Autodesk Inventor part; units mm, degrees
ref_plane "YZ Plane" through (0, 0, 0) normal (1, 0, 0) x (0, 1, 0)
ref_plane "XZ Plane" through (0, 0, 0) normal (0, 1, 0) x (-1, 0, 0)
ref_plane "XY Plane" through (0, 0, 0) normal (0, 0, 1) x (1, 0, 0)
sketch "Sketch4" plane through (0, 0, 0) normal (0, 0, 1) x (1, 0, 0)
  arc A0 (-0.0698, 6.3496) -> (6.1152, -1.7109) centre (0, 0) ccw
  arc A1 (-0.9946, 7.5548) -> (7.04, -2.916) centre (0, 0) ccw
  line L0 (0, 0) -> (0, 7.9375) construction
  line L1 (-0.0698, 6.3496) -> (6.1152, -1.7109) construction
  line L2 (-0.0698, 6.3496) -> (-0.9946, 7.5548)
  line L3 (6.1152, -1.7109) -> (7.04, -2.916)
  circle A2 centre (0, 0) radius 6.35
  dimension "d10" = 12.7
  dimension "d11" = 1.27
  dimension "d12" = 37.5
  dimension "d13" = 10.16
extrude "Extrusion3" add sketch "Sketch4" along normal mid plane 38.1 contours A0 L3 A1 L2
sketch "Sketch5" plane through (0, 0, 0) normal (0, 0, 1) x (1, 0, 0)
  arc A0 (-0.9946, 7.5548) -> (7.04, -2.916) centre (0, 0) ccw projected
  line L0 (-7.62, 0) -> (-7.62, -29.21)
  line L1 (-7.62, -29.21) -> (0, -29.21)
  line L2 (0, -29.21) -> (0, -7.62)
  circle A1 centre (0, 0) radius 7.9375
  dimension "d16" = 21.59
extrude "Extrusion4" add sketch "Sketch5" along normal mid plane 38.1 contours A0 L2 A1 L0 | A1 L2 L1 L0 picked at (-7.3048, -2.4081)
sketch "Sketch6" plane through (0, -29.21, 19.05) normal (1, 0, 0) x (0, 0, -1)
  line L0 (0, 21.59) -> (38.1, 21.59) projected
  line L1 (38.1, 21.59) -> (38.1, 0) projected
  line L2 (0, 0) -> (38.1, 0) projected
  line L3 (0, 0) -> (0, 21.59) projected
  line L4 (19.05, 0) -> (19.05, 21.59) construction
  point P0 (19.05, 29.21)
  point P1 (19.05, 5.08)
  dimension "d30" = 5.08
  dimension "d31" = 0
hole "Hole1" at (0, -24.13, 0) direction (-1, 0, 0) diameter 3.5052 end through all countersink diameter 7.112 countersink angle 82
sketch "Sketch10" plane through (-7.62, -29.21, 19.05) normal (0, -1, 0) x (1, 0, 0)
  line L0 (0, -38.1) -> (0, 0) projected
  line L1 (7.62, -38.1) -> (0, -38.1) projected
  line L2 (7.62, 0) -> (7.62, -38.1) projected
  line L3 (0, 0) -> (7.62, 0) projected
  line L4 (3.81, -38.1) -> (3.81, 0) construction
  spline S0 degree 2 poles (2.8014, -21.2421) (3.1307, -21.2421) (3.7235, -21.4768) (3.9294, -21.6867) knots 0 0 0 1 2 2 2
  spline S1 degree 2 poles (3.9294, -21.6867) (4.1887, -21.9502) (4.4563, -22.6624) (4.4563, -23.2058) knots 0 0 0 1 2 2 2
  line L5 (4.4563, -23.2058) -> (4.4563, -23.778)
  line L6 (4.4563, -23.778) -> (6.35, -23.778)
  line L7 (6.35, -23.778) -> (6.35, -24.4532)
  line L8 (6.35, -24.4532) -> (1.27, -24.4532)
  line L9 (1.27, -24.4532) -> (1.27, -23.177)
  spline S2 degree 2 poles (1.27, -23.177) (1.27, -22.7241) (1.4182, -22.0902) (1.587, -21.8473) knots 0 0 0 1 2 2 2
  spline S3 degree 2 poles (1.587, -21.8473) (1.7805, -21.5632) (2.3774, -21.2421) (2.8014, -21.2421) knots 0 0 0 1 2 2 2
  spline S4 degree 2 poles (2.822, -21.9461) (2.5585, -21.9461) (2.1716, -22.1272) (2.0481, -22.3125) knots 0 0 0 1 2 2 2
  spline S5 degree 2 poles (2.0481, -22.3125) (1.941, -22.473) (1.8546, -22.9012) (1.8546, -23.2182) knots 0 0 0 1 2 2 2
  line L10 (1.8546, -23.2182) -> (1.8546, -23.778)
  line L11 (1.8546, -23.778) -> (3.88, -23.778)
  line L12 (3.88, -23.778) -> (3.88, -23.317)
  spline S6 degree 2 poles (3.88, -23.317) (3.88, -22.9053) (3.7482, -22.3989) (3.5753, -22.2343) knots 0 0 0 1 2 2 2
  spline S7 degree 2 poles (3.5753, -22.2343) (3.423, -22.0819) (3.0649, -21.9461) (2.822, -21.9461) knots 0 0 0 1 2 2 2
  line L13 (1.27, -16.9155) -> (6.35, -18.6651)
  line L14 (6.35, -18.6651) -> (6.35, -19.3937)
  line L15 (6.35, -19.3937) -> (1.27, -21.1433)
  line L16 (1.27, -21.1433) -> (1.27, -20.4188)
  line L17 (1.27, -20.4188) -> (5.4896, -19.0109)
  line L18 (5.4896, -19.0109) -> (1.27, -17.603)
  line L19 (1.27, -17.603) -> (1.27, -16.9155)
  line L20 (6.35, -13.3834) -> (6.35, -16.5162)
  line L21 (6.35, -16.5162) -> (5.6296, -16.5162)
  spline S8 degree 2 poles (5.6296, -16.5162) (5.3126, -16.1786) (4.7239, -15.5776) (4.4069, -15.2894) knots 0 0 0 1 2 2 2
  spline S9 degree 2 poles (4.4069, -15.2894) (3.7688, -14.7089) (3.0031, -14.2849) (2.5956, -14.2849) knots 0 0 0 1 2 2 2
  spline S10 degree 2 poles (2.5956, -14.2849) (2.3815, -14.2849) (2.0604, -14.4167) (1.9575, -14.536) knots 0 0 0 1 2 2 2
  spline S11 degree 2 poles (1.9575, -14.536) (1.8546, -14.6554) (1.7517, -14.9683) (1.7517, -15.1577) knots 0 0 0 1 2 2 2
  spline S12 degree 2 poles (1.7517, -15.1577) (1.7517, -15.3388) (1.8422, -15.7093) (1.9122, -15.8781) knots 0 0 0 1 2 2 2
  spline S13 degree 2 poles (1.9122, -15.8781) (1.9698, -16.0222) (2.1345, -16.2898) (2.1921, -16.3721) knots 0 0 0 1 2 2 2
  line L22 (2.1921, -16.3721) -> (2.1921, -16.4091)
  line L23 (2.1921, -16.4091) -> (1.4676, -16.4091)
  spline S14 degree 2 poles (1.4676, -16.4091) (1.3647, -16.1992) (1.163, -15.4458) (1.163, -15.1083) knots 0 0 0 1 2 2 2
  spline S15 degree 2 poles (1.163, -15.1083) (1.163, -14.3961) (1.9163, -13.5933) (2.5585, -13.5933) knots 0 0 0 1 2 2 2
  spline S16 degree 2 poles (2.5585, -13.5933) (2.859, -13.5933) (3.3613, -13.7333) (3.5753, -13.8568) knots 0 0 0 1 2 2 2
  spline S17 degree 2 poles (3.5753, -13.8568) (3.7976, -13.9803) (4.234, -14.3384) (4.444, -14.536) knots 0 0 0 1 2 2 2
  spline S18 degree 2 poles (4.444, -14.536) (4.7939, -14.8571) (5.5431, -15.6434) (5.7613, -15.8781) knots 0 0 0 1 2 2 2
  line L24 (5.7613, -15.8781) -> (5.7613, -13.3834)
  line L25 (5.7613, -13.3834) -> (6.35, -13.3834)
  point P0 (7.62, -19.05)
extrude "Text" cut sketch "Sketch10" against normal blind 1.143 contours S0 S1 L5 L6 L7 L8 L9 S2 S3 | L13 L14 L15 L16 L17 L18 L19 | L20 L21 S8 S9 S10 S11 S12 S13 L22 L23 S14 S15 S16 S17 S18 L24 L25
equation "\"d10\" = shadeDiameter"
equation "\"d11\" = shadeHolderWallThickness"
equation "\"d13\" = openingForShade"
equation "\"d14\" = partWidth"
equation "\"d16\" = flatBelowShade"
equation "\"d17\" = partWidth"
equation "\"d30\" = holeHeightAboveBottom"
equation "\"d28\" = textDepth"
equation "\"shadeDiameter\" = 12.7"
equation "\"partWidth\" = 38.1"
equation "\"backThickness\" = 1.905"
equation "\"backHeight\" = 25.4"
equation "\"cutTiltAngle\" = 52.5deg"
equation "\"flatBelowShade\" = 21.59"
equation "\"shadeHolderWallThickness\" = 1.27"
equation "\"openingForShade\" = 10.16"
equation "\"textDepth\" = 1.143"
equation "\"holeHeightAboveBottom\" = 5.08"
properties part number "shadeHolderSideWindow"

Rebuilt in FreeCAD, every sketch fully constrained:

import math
import FreeCAD as App
import Part
import Sketcher
from FreeCAD import Vector
Q = App.Units.Quantity

doc = App.newDocument("Part")
params = doc.addObject("Spreadsheet::Sheet", "Params")
for row, (alias, value) in enumerate([
    ("sketch1_radius", "0.25 in"),
    ("sketch1_radius2", "0.3 in"),
    ("pad1_length", "1.5 in"),
    ("sketch2_height", "0.85 in"),
    ("sketch2_radius", "0.3 in"),
    ("pad2_length", "1.5 in"),
    ("sketch3_diameter", "0.138 in"),
    ("hole_diameter", "0.138 in"),
    ("hole_csink_diameter", "0.28 in"),
    ("sketch4_width", "0.2 in"),
    ("pocket1_length", "0.045 in"),
], start=1):
    params.set(f"A{row}", alias)
    params.set(f"B{row}", "=" + value)
    params.setAlias(f"B{row}", alias)

body = doc.addObject("PartDesign::Body", "Body")

# Sketch on XY plane
sketch1 = body.newObject("Sketcher::SketchObject", "Sketch")
sketch1.AttachmentSupport = (doc.getObject("XY_Plane"), [""])
sketch1.MapMode = "FlatFace"
sketch1.addGeometry(Part.ArcOfCircle(Part.Circle(Vector(0, 0, 0), Vector(0, 0, 1), 6.35), math.radians(90.629817), math.radians(344.369535)), False)
sketch1.addGeometry(Part.LineSegment(Vector(-0.0698, 6.3496, 0), Vector(-0.9946, 7.5548, 0)), False)
sketch1.addGeometry(Part.ArcOfCircle(Part.Circle(Vector(0, 0, 0), Vector(0, 0, 1), 7.619989), math.radians(97.499938), math.radians(337.500441)), False)
sketch1.addGeometry(Part.LineSegment(Vector(7.04, -2.916, 0), Vector(6.1152, -1.7109, 0)), False)
sketch1.addConstraint(Sketcher.Constraint("Coincident", 0, 1, 1, 1))
sketch1.addConstraint(Sketcher.Constraint("Coincident", 1, 2, 2, 1))
sketch1.addConstraint(Sketcher.Constraint("Coincident", 2, 2, 3, 1))
sketch1.addConstraint(Sketcher.Constraint("Coincident", 3, 2, 0, 2))
sketch1.addConstraint(Sketcher.Constraint("Coincident", 0, 3, -1, 1))
sketch1.addConstraint(Sketcher.Constraint("Coincident", 2, 3, -1, 1))
sketch1.addConstraint(Sketcher.Constraint("Parallel", 1, 3))
sketch1.addConstraint(Sketcher.Constraint("Equal", 1, 3))
sketch1.addConstraint(Sketcher.Constraint("Radius", 0, Q("0.25 in")))
sketch1.addConstraint(Sketcher.Constraint("Radius", 2, Q("0.3 in")))
sketch1.addConstraint(Sketcher.Constraint("Angle", 1, Q("127.5005 deg")))
sketch1.addConstraint(Sketcher.Constraint("Distance", 1, Q("0.0598 in")))
sketch1.setExpression("Constraints[8]", "Params.sketch1_radius")
sketch1.setExpression("Constraints[9]", "Params.sketch1_radius2")
pad1 = body.newObject("PartDesign::Pad", "Pad")
pad1.Profile = sketch1
pad1.setExpression("Length", "Params.pad1_length")
pad1.Midplane = True

# Sketch on XY plane
sketch2 = body.newObject("Sketcher::SketchObject", "Sketch001")
sketch2.AttachmentSupport = (doc.getObject("XY_Plane"), [""])
sketch2.MapMode = "FlatFace"
sketch2.addGeometry(Part.ArcOfCircle(Part.Circle(Vector(0, 0, 0), Vector(0, 0, 1), 7.619989), math.radians(180), math.radians(270)), False)
sketch2.addGeometry(Part.LineSegment(Vector(-7.62, 0, 0), Vector(-7.62, -29.21, 0)), False)
sketch2.addGeometry(Part.LineSegment(Vector(-7.62, -29.21, 0), Vector(0, -29.21, 0)), False)
sketch2.addGeometry(Part.LineSegment(Vector(0, -29.21, 0), Vector(0, -7.62, 0)), False)
sketch2.addConstraint(Sketcher.Constraint("Tangent", 0, 1, 1, 1))
sketch2.addConstraint(Sketcher.Constraint("Coincident", 1, 2, 2, 1))
sketch2.addConstraint(Sketcher.Constraint("Coincident", 2, 2, 3, 1))
sketch2.addConstraint(Sketcher.Constraint("Coincident", 3, 2, 0, 2))
sketch2.addConstraint(Sketcher.Constraint("Vertical", 1))
sketch2.addConstraint(Sketcher.Constraint("Horizontal", 2))
sketch2.addConstraint(Sketcher.Constraint("Vertical", 3))
sketch2.addConstraint(Sketcher.Constraint("Coincident", 0, 3, -1, 1))
sketch2.addConstraint(Sketcher.Constraint("PointOnObject", 2, 2, -2))
sketch2.addConstraint(Sketcher.Constraint("DistanceY", 3, 1, 3, 2, Q("0.85 in")))
sketch2.addConstraint(Sketcher.Constraint("Radius", 0, Q("0.3 in")))
sketch2.setExpression("Constraints[9]", "Params.sketch2_height")
sketch2.setExpression("Constraints[10]", "Params.sketch2_radius")
pad2 = body.newObject("PartDesign::Pad", "Pad001")
pad2.Profile = sketch2
pad2.setExpression("Length", "Params.pad2_length")
pad2.Midplane = True

# Sketch on YZ plane
sketch3 = body.newObject("Sketcher::SketchObject", "Sketch002")
sketch3.AttachmentSupport = (doc.getObject("YZ_Plane"), [""])
sketch3.MapMode = "FlatFace"
sketch3.addGeometry(Part.Circle(Vector(-24.13, 0, 0), Vector(0, 0, 1), 1.7526), False)
sketch3.addConstraint(Sketcher.Constraint("PointOnObject", 0, 3, -1))
sketch3.addConstraint(Sketcher.Constraint("Diameter", 0, Q("0.138 in")))
sketch3.addConstraint(Sketcher.Constraint("DistanceX", 0, 3, -1, 1, Q("0.95 in")))
sketch3.setExpression("Constraints[1]", "Params.sketch3_diameter")
doc.recompute()
hole = body.newObject("PartDesign::Hole", "Hole")
hole.Profile = sketch3
hole.ThreadType = "None"
hole.setExpression("Diameter", "Params.hole_diameter")
hole.DepthType = "ThroughAll"
hole.HoleCutType = "Countersink"
hole.setExpression("HoleCutDiameter", "Params.hole_csink_diameter")
hole.HoleCutCountersinkAngle = 82

# Sketch on XZ plane
sketch4 = body.newObject("Sketcher::SketchObject", "Sketch003")
sketch4.AttachmentSupport = (doc.getObject("XZ_Plane"), [""])
sketch4.MapMode = "FlatFace"
sketch4.AttachmentOffset = App.Placement(Vector(0, 0, 1.15 * 25.4), App.Rotation())
sketch4.addGeometry(Part.BSplineCurve([Vector(-4.8186, -2.1921, 0), Vector(-4.4893, -2.1921, 0), Vector(-3.8965, -2.4268, 0), Vector(-3.6906, -2.6367, 0)], [3, 1, 3], [0, 1, 2], False, 2, [1, 1, 1, 1], False), False)
sketch4.addGeometry(Part.BSplineCurve([Vector(-6.033, -2.7973, 0), Vector(-5.8395, -2.5132, 0), Vector(-5.2426, -2.1921, 0), Vector(-4.8186, -2.1921, 0)], [3, 1, 3], [0, 1, 2], False, 2, [1, 1, 1, 1], False), False)
sketch4.addGeometry(Part.BSplineCurve([Vector(-6.35, -4.127, 0), Vector(-6.35, -3.6741, 0), Vector(-6.2018, -3.0402, 0), Vector(-6.033, -2.7973, 0)], [3, 1, 3], [0, 1, 2], False, 2, [1, 1, 1, 1], False), False)
sketch4.addGeometry(Part.LineSegment(Vector(-6.35, -4.127, 0), Vector(-6.35, -5.4032, 0)), False)
sketch4.addGeometry(Part.LineSegment(Vector(-6.35, -5.4032, 0), Vector(-1.27, -5.4032, 0)), False)
sketch4.addGeometry(Part.LineSegment(Vector(-1.27, -5.4032, 0), Vector(-1.27, -4.728, 0)), False)
sketch4.addGeometry(Part.LineSegment(Vector(-1.27, -4.728, 0), Vector(-3.1637, -4.728, 0)), False)
sketch4.addGeometry(Part.LineSegment(Vector(-3.1637, -4.728, 0), Vector(-3.1637, -4.1558, 0)), False)
sketch4.addGeometry(Part.BSplineCurve([Vector(-3.6906, -2.6367, 0), Vector(-3.4313, -2.9002, 0), Vector(-3.1637, -3.6124, 0), Vector(-3.1637, -4.1558, 0)], [3, 1, 3], [0, 1, 2], False, 2, [1, 1, 1, 1], False), False)
sketch4.addGeometry(Part.BSplineCurve([Vector(-4.798, -2.8961, 0), Vector(-5.0615, -2.8961, 0), Vector(-5.4484, -3.0772, 0), Vector(-5.5719, -3.2625, 0)], [3, 1, 3], [0, 1, 2], False, 2, [1, 1, 1, 1], False), False)
sketch4.addGeometry(Part.BSplineCurve([Vector(-4.0447, -3.1843, 0), Vector(-4.197, -3.0319, 0), Vector(-4.5551, -2.8961, 0), Vector(-4.798, -2.8961, 0)], [3, 1, 3], [0, 1, 2], False, 2, [1, 1, 1, 1], False), False)
sketch4.addGeometry(Part.BSplineCurve([Vector(-3.74, -4.267, 0), Vector(-3.74, -3.8553, 0), Vector(-3.8718, -3.3489, 0), Vector(-4.0447, -3.1843, 0)], [3, 1, 3], [0, 1, 2], False, 2, [1, 1, 1, 1], False), False)
sketch4.addGeometry(Part.LineSegment(Vector(-3.74, -4.267, 0), Vector(-3.74, -4.728, 0)), False)
sketch4.addGeometry(Part.LineSegment(Vector(-3.74, -4.728, 0), Vector(-5.7654, -4.728, 0)), False)
sketch4.addGeometry(Part.LineSegment(Vector(-5.7654, -4.728, 0), Vector(-5.7654, -4.1682, 0)), False)
sketch4.addGeometry(Part.BSplineCurve([Vector(-5.5719, -3.2625, 0), Vector(-5.679, -3.423, 0), Vector(-5.7654, -3.8512, 0), Vector(-5.7654, -4.1682, 0)], [3, 1, 3], [0, 1, 2], False, 2, [1, 1, 1, 1], False), False)
sketch4.addGeometry(Part.LineSegment(Vector(-1.27, 0.3849, 0), Vector(-6.35, 2.1345, 0)), False)
sketch4.addGeometry(Part.LineSegment(Vector(-6.35, 2.1345, 0), Vector(-6.35, 1.447, 0)), False)
sketch4.addGeometry(Part.LineSegment(Vector(-6.35, 1.447, 0), Vector(-2.1304, 0.0391, 0)), False)
sketch4.addGeometry(Part.LineSegment(Vector(-2.1304, 0.0391, 0), Vector(-6.35, -1.3688, 0)), False)
sketch4.addGeometry(Part.LineSegment(Vector(-6.35, -1.3688, 0), Vector(-6.35, -2.0933, 0)), False)
sketch4.addGeometry(Part.LineSegment(Vector(-6.35, -2.0933, 0), Vector(-1.27, -0.3437, 0)), False)
sketch4.addGeometry(Part.LineSegment(Vector(-1.27, -0.3437, 0), Vector(-1.27, 0.3849, 0)), False)
sketch4.addGeometry(Part.LineSegment(Vector(-1.27, 2.5338, 0), Vector(-1.27, 5.6666, 0)), False)
sketch4.addGeometry(Part.LineSegment(Vector(-1.27, 5.6666, 0), Vector(-1.8587, 5.6666, 0)), False)
sketch4.addGeometry(Part.LineSegment(Vector(-1.8587, 5.6666, 0), Vector(-1.8587, 3.1719, 0)), False)
sketch4.addGeometry(Part.BSplineCurve([Vector(-3.176, 4.514, 0), Vector(-2.8261, 4.1929, 0), Vector(-2.0769, 3.4066, 0), Vector(-1.8587, 3.1719, 0)], [3, 1, 3], [0, 1, 2], False, 2, [1, 1, 1, 1], False), False)
sketch4.addGeometry(Part.BSplineCurve([Vector(-4.0447, 5.1932, 0), Vector(-3.8224, 5.0697, 0), Vector(-3.386, 4.7116, 0), Vector(-3.176, 4.514, 0)], [3, 1, 3], [0, 1, 2], False, 2, [1, 1, 1, 1], False), False)
sketch4.addGeometry(Part.BSplineCurve([Vector(-5.0615, 5.4567, 0), Vector(-4.761, 5.4567, 0), Vector(-4.2587, 5.3167, 0), Vector(-4.0447, 5.1932, 0)], [3, 1, 3], [0, 1, 2], False, 2, [1, 1, 1, 1], False), False)
sketch4.addGeometry(Part.BSplineCurve([Vector(-6.457, 3.9417, 0), Vector(-6.457, 4.6539, 0), Vector(-5.7037, 5.4567, 0), Vector(-5.0615, 5.4567, 0)], [3, 1, 3], [0, 1, 2], False, 2, [1, 1, 1, 1], False), False)
sketch4.addGeometry(Part.BSplineCurve([Vector(-6.1524, 2.6409, 0), Vector(-6.2553, 2.8508, 0), Vector(-6.457, 3.6042, 0), Vector(-6.457, 3.9417, 0)], [3, 1, 3], [0, 1, 2], False, 2, [1, 1, 1, 1], False), False)
sketch4.addGeometry(Part.LineSegment(Vector(-6.1524, 2.6409, 0), Vector(-5.4279, 2.6409, 0)), False)
sketch4.addGeometry(Part.LineSegment(Vector(-5.4279, 2.6409, 0), Vector(-5.4279, 2.6779, 0)), False)
sketch4.addGeometry(Part.BSplineCurve([Vector(-5.7078, 3.1719, 0), Vector(-5.6502, 3.0278, 0), Vector(-5.4855, 2.7602, 0), Vector(-5.4279, 2.6779, 0)], [3, 1, 3], [0, 1, 2], False, 2, [1, 1, 1, 1], False), False)
sketch4.addGeometry(Part.BSplineCurve([Vector(-5.8683, 3.8923, 0), Vector(-5.8683, 3.7112, 0), Vector(-5.7778, 3.3407, 0), Vector(-5.7078, 3.1719, 0)], [3, 1, 3], [0, 1, 2], False, 2, [1, 1, 1, 1], False), False)
sketch4.addGeometry(Part.BSplineCurve([Vector(-5.6625, 4.514, 0), Vector(-5.7654, 4.3946, 0), Vector(-5.8683, 4.0817, 0), Vector(-5.8683, 3.8923, 0)], [3, 1, 3], [0, 1, 2], False, 2, [1, 1, 1, 1], False), False)
sketch4.addGeometry(Part.BSplineCurve([Vector(-5.0244, 4.7651, 0), Vector(-5.2385, 4.7651, 0), Vector(-5.5596, 4.6333, 0), Vector(-5.6625, 4.514, 0)], [3, 1, 3], [0, 1, 2], False, 2, [1, 1, 1, 1], False), False)
sketch4.addGeometry(Part.BSplineCurve([Vector(-3.2131, 3.7606, 0), Vector(-3.8512, 4.3411, 0), Vector(-4.6169, 4.7651, 0), Vector(-5.0244, 4.7651, 0)], [3, 1, 3], [0, 1, 2], False, 2, [1, 1, 1, 1], False), False)
sketch4.addGeometry(Part.BSplineCurve([Vector(-1.9904, 2.5338, 0), Vector(-2.3074, 2.8714, 0), Vector(-2.8961, 3.4724, 0), Vector(-3.2131, 3.7606, 0)], [3, 1, 3], [0, 1, 2], False, 2, [1, 1, 1, 1], False), False)
sketch4.addGeometry(Part.LineSegment(Vector(-1.9904, 2.5338, 0), Vector(-1.27, 2.5338, 0)), False)
sketch4.addConstraint(Sketcher.Constraint("Block", 0))
sketch4.addConstraint(Sketcher.Constraint("Block", 1))
sketch4.addConstraint(Sketcher.Constraint("Block", 2))
sketch4.addConstraint(Sketcher.Constraint("Block", 8))
sketch4.addConstraint(Sketcher.Constraint("Block", 9))
sketch4.addConstraint(Sketcher.Constraint("Block", 10))
sketch4.addConstraint(Sketcher.Constraint("Block", 11))
sketch4.addConstraint(Sketcher.Constraint("Block", 15))
sketch4.addConstraint(Sketcher.Constraint("Block", 26))
sketch4.addConstraint(Sketcher.Constraint("Block", 27))
sketch4.addConstraint(Sketcher.Constraint("Block", 28))
sketch4.addConstraint(Sketcher.Constraint("Block", 29))
sketch4.addConstraint(Sketcher.Constraint("Block", 30))
sketch4.addConstraint(Sketcher.Constraint("Block", 33))
sketch4.addConstraint(Sketcher.Constraint("Block", 34))
sketch4.addConstraint(Sketcher.Constraint("Block", 35))
sketch4.addConstraint(Sketcher.Constraint("Block", 36))
sketch4.addConstraint(Sketcher.Constraint("Block", 37))
sketch4.addConstraint(Sketcher.Constraint("Block", 38))
sketch4.addConstraint(Sketcher.Constraint("Coincident", 2, 1, 3, 1))
sketch4.addConstraint(Sketcher.Constraint("Coincident", 3, 2, 4, 1))
sketch4.addConstraint(Sketcher.Constraint("Coincident", 4, 2, 5, 1))
sketch4.addConstraint(Sketcher.Constraint("Coincident", 5, 2, 6, 1))
sketch4.addConstraint(Sketcher.Constraint("Coincident", 6, 2, 7, 1))
sketch4.addConstraint(Sketcher.Constraint("Coincident", 7, 2, 8, 2))
sketch4.addConstraint(Sketcher.Constraint("Coincident", 11, 1, 12, 1))
sketch4.addConstraint(Sketcher.Constraint("Coincident", 12, 2, 13, 1))
sketch4.addConstraint(Sketcher.Constraint("Coincident", 13, 2, 14, 1))
sketch4.addConstraint(Sketcher.Constraint("Coincident", 14, 2, 15, 2))
sketch4.addConstraint(Sketcher.Constraint("Coincident", 16, 2, 17, 1))
sketch4.addConstraint(Sketcher.Constraint("Coincident", 17, 2, 18, 1))
sketch4.addConstraint(Sketcher.Constraint("Coincident", 18, 2, 19, 1))
sketch4.addConstraint(Sketcher.Constraint("Coincident", 19, 2, 20, 1))
sketch4.addConstraint(Sketcher.Constraint("Coincident", 20, 2, 21, 1))
sketch4.addConstraint(Sketcher.Constraint("Coincident", 21, 2, 22, 1))
sketch4.addConstraint(Sketcher.Constraint("Coincident", 22, 2, 16, 1))
sketch4.addConstraint(Sketcher.Constraint("Coincident", 23, 2, 24, 1))
sketch4.addConstraint(Sketcher.Constraint("Coincident", 24, 2, 25, 1))
sketch4.addConstraint(Sketcher.Constraint("Coincident", 25, 2, 26, 2))
sketch4.addConstraint(Sketcher.Constraint("Coincident", 30, 1, 31, 1))
sketch4.addConstraint(Sketcher.Constraint("Coincident", 31, 2, 32, 1))
sketch4.addConstraint(Sketcher.Constraint("Coincident", 32, 2, 33, 2))
sketch4.addConstraint(Sketcher.Constraint("Coincident", 38, 1, 39, 1))
sketch4.addConstraint(Sketcher.Constraint("Coincident", 39, 2, 23, 1))
sketch4.addConstraint(Sketcher.Constraint("Vertical", 3))
sketch4.addConstraint(Sketcher.Constraint("Horizontal", 4))
sketch4.addConstraint(Sketcher.Constraint("Vertical", 5))
sketch4.addConstraint(Sketcher.Constraint("Horizontal", 6))
sketch4.addConstraint(Sketcher.Constraint("Vertical", 7))
sketch4.addConstraint(Sketcher.Constraint("Vertical", 12))
sketch4.addConstraint(Sketcher.Constraint("Horizontal", 13))
sketch4.addConstraint(Sketcher.Constraint("Vertical", 14))
sketch4.addConstraint(Sketcher.Constraint("Vertical", 17))
sketch4.addConstraint(Sketcher.Constraint("Vertical", 20))
sketch4.addConstraint(Sketcher.Constraint("Vertical", 22))
sketch4.addConstraint(Sketcher.Constraint("Vertical", 23))
sketch4.addConstraint(Sketcher.Constraint("Horizontal", 24))
sketch4.addConstraint(Sketcher.Constraint("Vertical", 25))
sketch4.addConstraint(Sketcher.Constraint("Horizontal", 31))
sketch4.addConstraint(Sketcher.Constraint("Vertical", 32))
sketch4.addConstraint(Sketcher.Constraint("Horizontal", 39))
sketch4.addConstraint(Sketcher.Constraint("DistanceX", 4, 1, 4, 2, Q("0.2 in")))
sketch4.addConstraint(Sketcher.Constraint("DistanceX", 17, 2, 22, 2, Q("0.2 in")))
sketch4.addConstraint(Sketcher.Constraint("DistanceX", 16, 2, 23, 2, Q("0.2 in")))
sketch4.addConstraint(Sketcher.Constraint("DistanceX", 16, 2, -1, 1, Q("0.25 in")))
sketch4.addConstraint(Sketcher.Constraint("DistanceX", 19, 2, -1, 1, Q("0.25 in")))
sketch4.addConstraint(Sketcher.Constraint("DistanceY", 17, 2, 31, 2, Q("0.047 in")))
sketch4.addConstraint(Sketcher.Constraint("DistanceY", 3, 2, 3, 1, Q("1.2762 mm")))
sketch4.addConstraint(Sketcher.Constraint("DistanceY", 5, 1, 5, 2, Q("0.6752 mm")))
sketch4.addConstraint(Sketcher.Constraint("DistanceY", 12, 2, 12, 1, Q("0.461 mm")))
sketch4.addConstraint(Sketcher.Constraint("DistanceY", 17, 2, 17, 1, Q("0.6875 mm")))
sketch4.addConstraint(Sketcher.Constraint("DistanceY", 20, 2, 20, 1, Q("0.7245 mm")))
sketch4.addConstraint(Sketcher.Constraint("DistanceY", 22, 1, 22, 2, Q("0.7286 mm")))
sketch4.addConstraint(Sketcher.Constraint("DistanceY", 23, 1, 23, 2, Q("3.1328 mm")))
sketch4.addConstraint(Sketcher.Constraint("DistanceY", 19, 2, -1, 1, Q("0.0539 in")))
sketch4.addConstraint(Sketcher.Constraint("DistanceY", 18, 2, 16, 2, Q("0.0825 in")))
sketch4.addConstraint(Sketcher.Constraint("DistanceY", 5, 2, 21, 2, Q("0.1726 in")))
sketch4.addConstraint(Sketcher.Constraint("DistanceX", 18, 2, 24, 2, Q("0.0107 in")))
sketch4.setExpression("Constraints[61]", "Params.sketch4_width")
pocket1 = body.newObject("PartDesign::Pocket", "Pocket")
pocket1.Profile = sketch4
pocket1.setExpression("Length", "Params.pocket1_length")

doc.recompute()
